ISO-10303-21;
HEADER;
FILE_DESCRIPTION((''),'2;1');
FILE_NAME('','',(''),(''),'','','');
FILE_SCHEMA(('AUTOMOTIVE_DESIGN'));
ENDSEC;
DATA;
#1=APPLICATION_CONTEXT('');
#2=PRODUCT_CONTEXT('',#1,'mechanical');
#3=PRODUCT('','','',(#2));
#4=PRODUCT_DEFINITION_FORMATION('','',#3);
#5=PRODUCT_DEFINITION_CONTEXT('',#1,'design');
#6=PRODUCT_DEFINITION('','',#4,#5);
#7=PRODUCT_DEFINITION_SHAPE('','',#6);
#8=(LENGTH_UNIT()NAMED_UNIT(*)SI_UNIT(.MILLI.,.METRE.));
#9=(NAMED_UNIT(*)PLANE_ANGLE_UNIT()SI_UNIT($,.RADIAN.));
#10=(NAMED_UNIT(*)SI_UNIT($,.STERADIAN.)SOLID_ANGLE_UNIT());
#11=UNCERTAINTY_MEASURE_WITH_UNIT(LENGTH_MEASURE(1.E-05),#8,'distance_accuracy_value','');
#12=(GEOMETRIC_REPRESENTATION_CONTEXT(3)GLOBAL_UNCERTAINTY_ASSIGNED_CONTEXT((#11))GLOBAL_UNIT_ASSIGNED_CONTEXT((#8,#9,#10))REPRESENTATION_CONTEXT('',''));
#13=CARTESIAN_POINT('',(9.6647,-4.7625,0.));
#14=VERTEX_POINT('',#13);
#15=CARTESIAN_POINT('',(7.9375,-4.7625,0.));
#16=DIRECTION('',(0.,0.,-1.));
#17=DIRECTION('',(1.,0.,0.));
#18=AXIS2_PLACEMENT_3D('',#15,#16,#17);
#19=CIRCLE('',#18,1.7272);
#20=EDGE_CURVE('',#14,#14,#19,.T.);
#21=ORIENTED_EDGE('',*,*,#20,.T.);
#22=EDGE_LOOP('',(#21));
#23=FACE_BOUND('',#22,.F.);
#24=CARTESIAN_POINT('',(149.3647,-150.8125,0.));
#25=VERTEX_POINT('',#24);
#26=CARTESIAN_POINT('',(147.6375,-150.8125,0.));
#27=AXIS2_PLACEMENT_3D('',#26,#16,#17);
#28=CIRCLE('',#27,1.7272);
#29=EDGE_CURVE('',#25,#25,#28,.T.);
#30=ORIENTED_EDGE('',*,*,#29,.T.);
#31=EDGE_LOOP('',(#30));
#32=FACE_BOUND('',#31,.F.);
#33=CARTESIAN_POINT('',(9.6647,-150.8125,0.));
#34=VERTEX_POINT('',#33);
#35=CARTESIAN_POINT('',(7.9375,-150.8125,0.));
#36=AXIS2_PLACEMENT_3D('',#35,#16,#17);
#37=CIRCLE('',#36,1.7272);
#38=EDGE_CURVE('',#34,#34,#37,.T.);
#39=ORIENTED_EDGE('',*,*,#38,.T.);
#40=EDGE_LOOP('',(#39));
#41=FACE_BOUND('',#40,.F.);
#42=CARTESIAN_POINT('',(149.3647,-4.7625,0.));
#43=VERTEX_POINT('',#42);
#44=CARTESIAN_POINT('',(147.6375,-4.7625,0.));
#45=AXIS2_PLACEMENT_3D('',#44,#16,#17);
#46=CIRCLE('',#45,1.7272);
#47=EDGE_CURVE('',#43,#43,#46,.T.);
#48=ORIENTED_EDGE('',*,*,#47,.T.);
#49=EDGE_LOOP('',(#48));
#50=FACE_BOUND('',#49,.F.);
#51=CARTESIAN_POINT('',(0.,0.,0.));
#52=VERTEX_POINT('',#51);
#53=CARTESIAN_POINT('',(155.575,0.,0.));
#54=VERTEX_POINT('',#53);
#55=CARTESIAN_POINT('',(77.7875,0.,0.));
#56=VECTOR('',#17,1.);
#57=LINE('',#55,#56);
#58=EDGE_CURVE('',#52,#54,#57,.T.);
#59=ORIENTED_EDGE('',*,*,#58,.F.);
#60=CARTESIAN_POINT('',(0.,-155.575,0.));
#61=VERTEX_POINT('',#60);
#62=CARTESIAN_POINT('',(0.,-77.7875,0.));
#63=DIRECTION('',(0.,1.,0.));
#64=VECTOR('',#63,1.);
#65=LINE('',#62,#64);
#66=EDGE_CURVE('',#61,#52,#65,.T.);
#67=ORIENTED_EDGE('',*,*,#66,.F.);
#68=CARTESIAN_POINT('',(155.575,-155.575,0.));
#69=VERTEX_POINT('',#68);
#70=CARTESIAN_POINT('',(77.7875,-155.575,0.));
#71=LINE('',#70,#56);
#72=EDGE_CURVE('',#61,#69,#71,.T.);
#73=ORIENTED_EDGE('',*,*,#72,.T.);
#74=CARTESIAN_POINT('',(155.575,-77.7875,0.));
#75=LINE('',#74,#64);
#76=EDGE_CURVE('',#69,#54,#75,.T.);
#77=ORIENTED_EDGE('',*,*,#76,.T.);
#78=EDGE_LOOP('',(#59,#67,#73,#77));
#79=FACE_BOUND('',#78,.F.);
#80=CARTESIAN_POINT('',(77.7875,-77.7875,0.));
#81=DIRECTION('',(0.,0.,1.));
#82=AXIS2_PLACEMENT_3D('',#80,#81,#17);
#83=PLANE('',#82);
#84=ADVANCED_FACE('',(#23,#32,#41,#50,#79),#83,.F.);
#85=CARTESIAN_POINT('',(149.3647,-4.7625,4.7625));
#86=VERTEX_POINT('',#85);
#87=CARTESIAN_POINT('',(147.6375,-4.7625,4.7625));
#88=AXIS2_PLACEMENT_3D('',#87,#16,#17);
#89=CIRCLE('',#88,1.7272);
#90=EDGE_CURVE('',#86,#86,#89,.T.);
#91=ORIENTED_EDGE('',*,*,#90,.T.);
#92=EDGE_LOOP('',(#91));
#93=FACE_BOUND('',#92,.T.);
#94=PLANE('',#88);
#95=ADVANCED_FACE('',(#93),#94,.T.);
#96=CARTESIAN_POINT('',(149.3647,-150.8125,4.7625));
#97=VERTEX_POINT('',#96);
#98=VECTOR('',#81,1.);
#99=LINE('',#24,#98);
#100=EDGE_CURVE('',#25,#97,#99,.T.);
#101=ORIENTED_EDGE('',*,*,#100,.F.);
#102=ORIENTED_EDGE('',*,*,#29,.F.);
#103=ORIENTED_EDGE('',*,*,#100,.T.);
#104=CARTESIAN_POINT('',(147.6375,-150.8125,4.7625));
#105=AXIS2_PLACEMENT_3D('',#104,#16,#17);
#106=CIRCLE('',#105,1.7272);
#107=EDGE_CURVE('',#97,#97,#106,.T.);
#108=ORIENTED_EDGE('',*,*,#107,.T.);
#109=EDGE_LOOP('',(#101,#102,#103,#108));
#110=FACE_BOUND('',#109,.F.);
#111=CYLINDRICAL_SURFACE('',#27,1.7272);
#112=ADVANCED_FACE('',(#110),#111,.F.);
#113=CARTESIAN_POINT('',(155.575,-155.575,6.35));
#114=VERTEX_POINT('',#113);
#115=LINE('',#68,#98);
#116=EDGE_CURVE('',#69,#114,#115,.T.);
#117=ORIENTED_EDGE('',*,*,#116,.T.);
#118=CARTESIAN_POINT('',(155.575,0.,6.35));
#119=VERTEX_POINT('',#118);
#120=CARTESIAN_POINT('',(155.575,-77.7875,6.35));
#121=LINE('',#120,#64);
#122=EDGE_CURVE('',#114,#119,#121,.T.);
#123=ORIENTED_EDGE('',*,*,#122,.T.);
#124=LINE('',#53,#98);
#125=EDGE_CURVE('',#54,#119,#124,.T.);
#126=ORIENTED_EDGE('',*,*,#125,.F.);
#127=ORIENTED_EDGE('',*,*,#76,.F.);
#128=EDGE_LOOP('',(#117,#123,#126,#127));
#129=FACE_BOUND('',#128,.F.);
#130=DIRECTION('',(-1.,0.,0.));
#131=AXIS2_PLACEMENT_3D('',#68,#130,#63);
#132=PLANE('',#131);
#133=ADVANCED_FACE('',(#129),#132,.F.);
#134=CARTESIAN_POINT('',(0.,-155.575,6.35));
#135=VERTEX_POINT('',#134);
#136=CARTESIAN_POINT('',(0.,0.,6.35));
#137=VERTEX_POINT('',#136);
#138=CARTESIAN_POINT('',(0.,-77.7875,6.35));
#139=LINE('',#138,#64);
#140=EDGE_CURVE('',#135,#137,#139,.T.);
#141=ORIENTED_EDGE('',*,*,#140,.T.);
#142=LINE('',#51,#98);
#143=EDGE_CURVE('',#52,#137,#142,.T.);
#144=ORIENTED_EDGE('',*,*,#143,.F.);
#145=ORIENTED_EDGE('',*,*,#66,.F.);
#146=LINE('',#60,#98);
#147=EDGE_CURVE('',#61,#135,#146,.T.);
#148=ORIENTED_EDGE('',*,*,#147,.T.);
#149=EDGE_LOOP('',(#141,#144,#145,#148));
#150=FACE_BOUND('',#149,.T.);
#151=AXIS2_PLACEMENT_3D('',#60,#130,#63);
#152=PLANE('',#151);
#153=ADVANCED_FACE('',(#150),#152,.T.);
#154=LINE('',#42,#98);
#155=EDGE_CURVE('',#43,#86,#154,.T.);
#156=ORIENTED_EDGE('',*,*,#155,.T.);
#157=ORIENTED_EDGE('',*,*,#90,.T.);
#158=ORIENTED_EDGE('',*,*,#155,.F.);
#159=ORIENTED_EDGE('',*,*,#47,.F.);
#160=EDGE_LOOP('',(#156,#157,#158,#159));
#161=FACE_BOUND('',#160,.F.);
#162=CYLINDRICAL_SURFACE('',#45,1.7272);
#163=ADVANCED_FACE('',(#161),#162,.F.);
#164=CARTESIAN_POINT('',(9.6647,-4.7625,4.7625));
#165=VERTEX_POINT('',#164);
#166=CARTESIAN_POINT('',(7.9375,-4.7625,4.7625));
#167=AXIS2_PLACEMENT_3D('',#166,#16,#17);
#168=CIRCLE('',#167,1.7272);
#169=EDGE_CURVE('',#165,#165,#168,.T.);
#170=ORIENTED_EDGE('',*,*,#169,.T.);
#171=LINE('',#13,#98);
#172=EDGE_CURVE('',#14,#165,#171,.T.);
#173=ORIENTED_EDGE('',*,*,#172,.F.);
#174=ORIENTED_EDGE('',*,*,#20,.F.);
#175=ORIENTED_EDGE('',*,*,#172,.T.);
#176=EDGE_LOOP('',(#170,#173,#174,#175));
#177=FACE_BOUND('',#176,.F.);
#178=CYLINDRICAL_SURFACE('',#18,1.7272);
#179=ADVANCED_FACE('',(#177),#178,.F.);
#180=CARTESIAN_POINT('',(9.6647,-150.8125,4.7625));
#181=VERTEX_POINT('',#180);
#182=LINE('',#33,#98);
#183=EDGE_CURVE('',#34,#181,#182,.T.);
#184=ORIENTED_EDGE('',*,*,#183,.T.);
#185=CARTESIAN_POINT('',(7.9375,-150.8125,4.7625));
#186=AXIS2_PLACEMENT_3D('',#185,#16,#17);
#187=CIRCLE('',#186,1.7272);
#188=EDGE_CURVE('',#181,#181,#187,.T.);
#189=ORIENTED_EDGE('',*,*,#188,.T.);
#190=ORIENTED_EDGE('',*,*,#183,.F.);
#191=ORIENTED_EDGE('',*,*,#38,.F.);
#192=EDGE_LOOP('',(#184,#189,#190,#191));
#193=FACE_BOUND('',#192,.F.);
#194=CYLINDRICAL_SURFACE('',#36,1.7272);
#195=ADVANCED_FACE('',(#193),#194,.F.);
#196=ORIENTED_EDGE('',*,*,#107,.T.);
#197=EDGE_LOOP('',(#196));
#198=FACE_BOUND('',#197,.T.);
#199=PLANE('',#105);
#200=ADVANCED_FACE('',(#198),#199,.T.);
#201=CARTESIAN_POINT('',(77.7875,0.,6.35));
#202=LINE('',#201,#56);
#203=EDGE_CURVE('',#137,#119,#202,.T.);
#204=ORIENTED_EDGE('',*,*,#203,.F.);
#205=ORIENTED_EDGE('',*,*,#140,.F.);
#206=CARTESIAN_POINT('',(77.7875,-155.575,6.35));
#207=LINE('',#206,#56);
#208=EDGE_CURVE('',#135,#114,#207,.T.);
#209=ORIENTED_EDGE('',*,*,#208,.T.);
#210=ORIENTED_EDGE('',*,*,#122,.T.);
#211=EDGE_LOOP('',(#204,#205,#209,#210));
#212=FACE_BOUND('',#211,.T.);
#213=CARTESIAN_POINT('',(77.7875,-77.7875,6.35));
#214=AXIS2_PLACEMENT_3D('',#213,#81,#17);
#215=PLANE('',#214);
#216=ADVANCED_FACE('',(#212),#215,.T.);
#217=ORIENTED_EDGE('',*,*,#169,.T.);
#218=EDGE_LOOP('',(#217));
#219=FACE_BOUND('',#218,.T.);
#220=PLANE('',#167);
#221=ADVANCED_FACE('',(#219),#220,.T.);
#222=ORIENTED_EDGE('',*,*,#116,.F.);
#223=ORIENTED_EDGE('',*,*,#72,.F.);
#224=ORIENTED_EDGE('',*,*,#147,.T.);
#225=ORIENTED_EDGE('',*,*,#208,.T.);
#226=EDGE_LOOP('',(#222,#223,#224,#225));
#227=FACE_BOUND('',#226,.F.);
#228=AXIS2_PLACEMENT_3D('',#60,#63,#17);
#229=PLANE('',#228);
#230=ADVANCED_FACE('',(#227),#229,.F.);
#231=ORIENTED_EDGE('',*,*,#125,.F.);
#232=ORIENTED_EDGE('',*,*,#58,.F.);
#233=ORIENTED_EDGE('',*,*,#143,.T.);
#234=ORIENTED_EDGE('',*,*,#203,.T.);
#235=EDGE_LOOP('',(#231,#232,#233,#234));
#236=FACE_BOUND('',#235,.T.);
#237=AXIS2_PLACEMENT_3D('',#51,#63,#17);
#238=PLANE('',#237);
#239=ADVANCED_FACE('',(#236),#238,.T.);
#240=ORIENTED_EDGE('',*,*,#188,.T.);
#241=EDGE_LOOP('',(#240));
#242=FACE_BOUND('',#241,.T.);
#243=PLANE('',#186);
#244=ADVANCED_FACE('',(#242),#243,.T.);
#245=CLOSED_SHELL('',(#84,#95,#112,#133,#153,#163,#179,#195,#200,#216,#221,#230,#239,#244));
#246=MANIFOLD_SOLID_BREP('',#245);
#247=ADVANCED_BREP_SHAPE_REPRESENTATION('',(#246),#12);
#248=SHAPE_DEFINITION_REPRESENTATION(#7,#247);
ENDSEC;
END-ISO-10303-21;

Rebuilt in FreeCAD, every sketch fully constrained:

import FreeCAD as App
import Part
import Sketcher
from FreeCAD import Vector
Q = App.Units.Quantity


def add_polygon(sketch, points):
    """Adds a closed chain of lines whose ends are joined by coincident constraints."""
    first, n = sketch.GeometryCount, len(points)
    for a, b in zip(points, points[1:] + points[:1]):
        sketch.addGeometry(Part.LineSegment(App.Vector(*a, 0), App.Vector(*b, 0)), False)
    for i in range(n):
        sketch.addConstraint(Sketcher.Constraint("Coincident", first + i, 2, first + (i + 1) % n, 1))

doc = App.newDocument("Part")
body = doc.addObject("PartDesign::Body", "Body")

# Sketch on XY plane
sketch1 = body.newObject("Sketcher::SketchObject", "Sketch")
sketch1.AttachmentSupport = (doc.getObject("XY_Plane"), [""])
sketch1.MapMode = "FlatFace"
add_polygon(sketch1, [(0, 0), (0, -156), (156, -156), (156, 0)])  # lines 0-3
sketch1.addConstraint(Sketcher.Constraint("Vertical", 0))
sketch1.addConstraint(Sketcher.Constraint("Horizontal", 1))
sketch1.addConstraint(Sketcher.Constraint("Vertical", 2))
sketch1.addConstraint(Sketcher.Constraint("Horizontal", 3))
sketch1.addConstraint(Sketcher.Constraint("Coincident", 3, 2, -1, 1))
sketch1.addConstraint(Sketcher.Constraint("Equal", 3, 0))
sketch1.addConstraint(Sketcher.Constraint("DistanceX", 1, 1, 1, 2, Q("6.125 in")))
pad1 = body.newObject("PartDesign::Pad", "Pad")
pad1.Profile = sketch1
pad1.Length = Q("0.25 in")

# Sketch on XY plane
sketch2 = body.newObject("Sketcher::SketchObject", "Sketch001")
sketch2.AttachmentSupport = (doc.getObject("XY_Plane"), [""])
sketch2.MapMode = "FlatFace"
sketch2.addGeometry(Part.Circle(Vector(147.6, -150.8, 0), Vector(0, 0, 1), 1.7), False)
sketch2.addGeometry(Part.Circle(Vector(147.6, -4.8, 0), Vector(0, 0, 1), 1.7), False)
sketch2.addGeometry(Part.Circle(Vector(7.9, -4.8, 0), Vector(0, 0, 1), 1.7), False)
sketch2.addGeometry(Part.Circle(Vector(7.9, -150.8, 0), Vector(0, 0, 1), 1.7), False)
sketch2.addConstraint(Sketcher.Constraint("Equal", 0, 1))
sketch2.addConstraint(Sketcher.Constraint("Equal", 1, 2))
sketch2.addConstraint(Sketcher.Constraint("Equal", 2, 3))
sketch2.addConstraint(Sketcher.Constraint("Horizontal", 1, 3, 2, 3))
sketch2.addConstraint(Sketcher.Constraint("Horizontal", 0, 3, 3, 3))
sketch2.addConstraint(Sketcher.Constraint("Vertical", 0, 3, 1, 3))
sketch2.addConstraint(Sketcher.Constraint("Vertical", 2, 3, 3, 3))
sketch2.addConstraint(Sketcher.Constraint("Diameter", 0, Q("0.136 in")))
sketch2.addConstraint(Sketcher.Constraint("DistanceX", 2, 3, 1, 3, Q("5.5 in")))
sketch2.addConstraint(Sketcher.Constraint("DistanceY", 0, 3, 1, 3, Q("5.75 in")))
sketch2.addConstraint(Sketcher.Constraint("DistanceX", -1, 1, 0, 3, Q("5.8125 in")))
sketch2.addConstraint(Sketcher.Constraint("DistanceY", 0, 3, -1, 1, Q("5.9375 in")))
pocket1 = body.newObject("PartDesign::Pocket", "Pocket")
pocket1.Profile = sketch2
pocket1.Length = Q("0.1875 in")
pocket1.Reversed = True

doc.recompute()
